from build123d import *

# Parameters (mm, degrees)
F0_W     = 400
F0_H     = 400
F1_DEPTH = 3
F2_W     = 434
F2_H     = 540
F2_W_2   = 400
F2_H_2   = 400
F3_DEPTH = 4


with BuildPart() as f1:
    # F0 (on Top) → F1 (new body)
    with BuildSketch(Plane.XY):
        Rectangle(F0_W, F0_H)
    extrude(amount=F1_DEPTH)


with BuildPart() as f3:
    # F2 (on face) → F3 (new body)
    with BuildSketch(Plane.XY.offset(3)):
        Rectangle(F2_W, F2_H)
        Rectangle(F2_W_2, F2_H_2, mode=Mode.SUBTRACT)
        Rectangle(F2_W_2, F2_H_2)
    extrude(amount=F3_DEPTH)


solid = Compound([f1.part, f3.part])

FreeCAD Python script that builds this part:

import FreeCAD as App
import Part
import Sketcher
Q = App.Units.Quantity

doc = App.newDocument("Part")
params = doc.addObject("Spreadsheet::Sheet", "Params")
for row, (alias, value) in enumerate([
    ("sketch1_width", "400 mm"),
    ("pad1_length", "3 mm"),
    ("sketch2_width", "434 mm"),
    ("sketch2_height", "540 mm"),
    ("pad2_length", "4 mm"),
], start=1):
    params.set(f"A{row}", alias)
    params.set(f"B{row}", "=" + value)
    params.setAlias(f"B{row}", alias)

body = doc.addObject("PartDesign::Body", "Body")

sketch1 = body.newObject("Sketcher::SketchObject", "Sketch")
sketch1.AttachmentSupport = (doc.getObject("XY_Plane"), [""])
sketch1.MapMode = "FlatFace"
sketch1.addGeometry([
    Part.LineSegment(App.Vector(-200, 200, 0), App.Vector(-200, -200, 0)),
    Part.LineSegment(App.Vector(-200, -200, 0), App.Vector(200, -200, 0)),
    Part.LineSegment(App.Vector(200, -200, 0), App.Vector(200, 200, 0)),
    Part.LineSegment(App.Vector(200, 200, 0), App.Vector(-200, 200, 0)),
], False)
sketch1.addConstraint([
    Sketcher.Constraint("Coincident", 0, 2, 1, 1),
    Sketcher.Constraint("Coincident", 1, 2, 2, 1),
    Sketcher.Constraint("Coincident", 2, 2, 3, 1),
    Sketcher.Constraint("Coincident", 3, 2, 0, 1),
    Sketcher.Constraint("Vertical", 0),
    Sketcher.Constraint("Horizontal", 1),
    Sketcher.Constraint("Vertical", 2),
    Sketcher.Constraint("Horizontal", 3),
    Sketcher.Constraint("Symmetric", 0, 2, 2, 2, -1, 1),
    Sketcher.Constraint("Equal", 3, 0),
    Sketcher.Constraint("DistanceX", 1, 1, 1, 2, Q("400 mm")),
])
sketch1.setExpression("Constraints[10]", "Params.sketch1_width")
pad1 = body.newObject("PartDesign::Pad", "Pad")
pad1.Profile = sketch1
pad1.setExpression("Length", "Params.pad1_length")
body2 = doc.addObject("PartDesign::Body", "Body001")

sketch2 = body2.newObject("Sketcher::SketchObject", "Sketch001")
sketch2.AttachmentSupport = (doc.getObject("XY_Plane001"), [""])
sketch2.MapMode = "FlatFace"
sketch2.AttachmentOffset = App.Placement(App.Vector(0, 0, 3), App.Rotation())
sketch2.addGeometry([
    Part.LineSegment(App.Vector(-217, 270, 0), App.Vector(-217, -270, 0)),
    Part.LineSegment(App.Vector(-217, -270, 0), App.Vector(217, -270, 0)),
    Part.LineSegment(App.Vector(217, -270, 0), App.Vector(217, 270, 0)),
    Part.LineSegment(App.Vector(217, 270, 0), App.Vector(-217, 270, 0)),
], False)
sketch2.addConstraint([
    Sketcher.Constraint("Coincident", 0, 2, 1, 1),
    Sketcher.Constraint("Coincident", 1, 2, 2, 1),
    Sketcher.Constraint("Coincident", 2, 2, 3, 1),
    Sketcher.Constraint("Coincident", 3, 2, 0, 1),
    Sketcher.Constraint("Vertical", 0),
    Sketcher.Constraint("Horizontal", 1),
    Sketcher.Constraint("Vertical", 2),
    Sketcher.Constraint("Horizontal", 3),
    Sketcher.Constraint("Symmetric", 0, 2, 2, 2, -1, 1),
    Sketcher.Constraint("DistanceX", 1, 1, 1, 2, Q("434 mm")),
    Sketcher.Constraint("DistanceY", 0, 2, 0, 1, Q("540 mm")),
])
sketch2.setExpression("Constraints[9]", "Params.sketch2_width")
sketch2.setExpression("Constraints[10]", "Params.sketch2_height")
pad2 = body2.newObject("PartDesign::Pad", "Pad001")
pad2.Profile = sketch2
pad2.setExpression("Length", "Params.pad2_length")

doc.recompute()
